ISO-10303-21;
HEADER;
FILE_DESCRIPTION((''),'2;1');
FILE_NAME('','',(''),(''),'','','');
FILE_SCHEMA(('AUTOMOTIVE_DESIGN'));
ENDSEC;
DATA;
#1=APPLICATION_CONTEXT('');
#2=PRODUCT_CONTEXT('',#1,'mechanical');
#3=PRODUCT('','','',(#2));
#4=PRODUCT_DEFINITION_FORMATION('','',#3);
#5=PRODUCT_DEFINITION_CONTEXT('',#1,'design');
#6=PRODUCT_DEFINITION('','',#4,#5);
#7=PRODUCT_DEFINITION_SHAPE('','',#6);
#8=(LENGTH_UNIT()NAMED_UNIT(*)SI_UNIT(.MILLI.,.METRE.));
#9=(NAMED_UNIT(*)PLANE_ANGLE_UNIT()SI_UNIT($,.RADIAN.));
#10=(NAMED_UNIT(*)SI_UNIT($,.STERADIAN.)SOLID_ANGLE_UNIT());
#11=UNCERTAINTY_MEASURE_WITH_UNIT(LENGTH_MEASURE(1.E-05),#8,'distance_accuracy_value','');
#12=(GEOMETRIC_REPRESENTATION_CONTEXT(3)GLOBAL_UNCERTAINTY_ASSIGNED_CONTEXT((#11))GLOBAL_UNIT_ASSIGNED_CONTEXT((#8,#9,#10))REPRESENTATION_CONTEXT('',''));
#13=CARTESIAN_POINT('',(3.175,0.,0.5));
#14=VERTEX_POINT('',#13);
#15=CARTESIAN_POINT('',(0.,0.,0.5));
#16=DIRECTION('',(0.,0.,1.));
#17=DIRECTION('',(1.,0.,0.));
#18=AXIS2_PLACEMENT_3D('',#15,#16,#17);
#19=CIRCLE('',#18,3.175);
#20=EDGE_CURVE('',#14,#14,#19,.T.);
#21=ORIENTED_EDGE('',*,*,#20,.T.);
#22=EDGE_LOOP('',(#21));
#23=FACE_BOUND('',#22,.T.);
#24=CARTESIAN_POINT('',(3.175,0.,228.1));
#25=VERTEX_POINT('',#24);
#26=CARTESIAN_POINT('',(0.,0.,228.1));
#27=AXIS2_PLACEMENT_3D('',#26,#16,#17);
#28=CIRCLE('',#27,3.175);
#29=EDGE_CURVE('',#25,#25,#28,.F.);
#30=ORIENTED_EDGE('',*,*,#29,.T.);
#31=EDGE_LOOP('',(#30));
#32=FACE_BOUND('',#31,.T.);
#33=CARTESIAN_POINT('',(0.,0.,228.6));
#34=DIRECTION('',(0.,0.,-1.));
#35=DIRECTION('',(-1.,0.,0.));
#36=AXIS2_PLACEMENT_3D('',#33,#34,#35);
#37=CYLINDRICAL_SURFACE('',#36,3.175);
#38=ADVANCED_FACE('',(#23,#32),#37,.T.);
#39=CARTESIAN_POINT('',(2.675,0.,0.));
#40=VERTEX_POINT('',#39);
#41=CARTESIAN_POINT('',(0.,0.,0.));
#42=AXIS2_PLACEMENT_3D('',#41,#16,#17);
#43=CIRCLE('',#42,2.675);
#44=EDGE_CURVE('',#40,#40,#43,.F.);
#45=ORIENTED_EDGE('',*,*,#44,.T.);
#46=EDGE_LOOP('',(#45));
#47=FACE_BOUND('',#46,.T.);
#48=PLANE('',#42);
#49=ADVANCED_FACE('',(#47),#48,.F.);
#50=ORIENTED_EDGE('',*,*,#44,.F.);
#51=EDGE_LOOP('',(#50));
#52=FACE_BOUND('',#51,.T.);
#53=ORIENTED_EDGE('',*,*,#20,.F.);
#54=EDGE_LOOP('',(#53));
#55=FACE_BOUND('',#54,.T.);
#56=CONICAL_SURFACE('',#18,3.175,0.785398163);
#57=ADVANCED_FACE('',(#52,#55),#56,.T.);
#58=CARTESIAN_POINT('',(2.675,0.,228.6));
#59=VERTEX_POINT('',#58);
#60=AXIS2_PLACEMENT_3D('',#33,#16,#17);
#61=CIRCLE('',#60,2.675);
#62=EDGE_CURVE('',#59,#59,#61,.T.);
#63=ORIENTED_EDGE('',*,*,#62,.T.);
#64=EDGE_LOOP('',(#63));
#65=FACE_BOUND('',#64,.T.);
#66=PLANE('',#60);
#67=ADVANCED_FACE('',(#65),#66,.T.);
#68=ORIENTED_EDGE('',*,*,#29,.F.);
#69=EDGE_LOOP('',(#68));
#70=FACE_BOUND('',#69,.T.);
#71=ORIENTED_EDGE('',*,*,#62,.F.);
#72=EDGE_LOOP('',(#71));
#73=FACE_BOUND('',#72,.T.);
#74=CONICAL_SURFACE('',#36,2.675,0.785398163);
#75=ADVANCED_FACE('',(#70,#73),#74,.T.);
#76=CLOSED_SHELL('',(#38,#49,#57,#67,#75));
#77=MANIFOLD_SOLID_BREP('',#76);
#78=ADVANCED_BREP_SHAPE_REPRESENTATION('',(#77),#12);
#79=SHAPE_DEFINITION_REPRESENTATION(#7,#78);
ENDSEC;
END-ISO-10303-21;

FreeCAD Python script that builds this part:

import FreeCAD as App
import Part
import Sketcher

V = App.Vector
Q = App.Units.Quantity


def edges_at(feature, points):
    """Names of the edges that pass closest to the given points."""
    edges = feature.Shape.Edges
    near = lambda p: min(range(len(edges)), key=lambda i: edges[i].distToShape(Part.Vertex(*p))[0])
    return sorted({f"Edge{near(p) + 1}" for p in points})

doc = App.newDocument("Part")
params = doc.addObject("Spreadsheet::Sheet", "Params")
for row, (alias, value) in enumerate([
    ("sketch1_diameter", "0.25 in"),
    ("pad1_length", "9 in"),
    ("chamfer_size", "0.5 mm"),
], start=1):
    params.set(f"A{row}", alias)
    params.set(f"B{row}", "=" + value)
    params.setAlias(f"B{row}", alias)

body = doc.addObject("PartDesign::Body", "Body")

sketch1 = doc.addObject("Sketcher::SketchObject", "Sketch")
body.addObject(sketch1)
sketch1.AttachmentSupport = (doc.XY_Plane, [""])
sketch1.MapMode = "FlatFace"
sketch1.addGeometry(Part.Circle(V(0, 0, 0), V(0, 0, 1), 3.175), False)
sketch1.addConstraint([
    Sketcher.Constraint("Coincident", 0, 3, -1, 1),
    Sketcher.Constraint("Diameter", 0, Q("0.25 in")),
])
sketch1.setExpression("Constraints[1]", "Params.sketch1_diameter")
pad1 = doc.addObject("PartDesign::Pad", "Pad")
body.addObject(pad1)
pad1.Profile = sketch1
pad1.setExpression("Length", "Params.pad1_length")
doc.recompute()

chamfer = doc.addObject("PartDesign::Chamfer", "Chamfer")
body.addObject(chamfer)
chamfer.Base = (pad1, edges_at(pad1, [(-3.175, 0, 0), (-3.175, 0, 228.6)]))
chamfer.setExpression("Size", "Params.chamfer_size")

doc.recompute()
